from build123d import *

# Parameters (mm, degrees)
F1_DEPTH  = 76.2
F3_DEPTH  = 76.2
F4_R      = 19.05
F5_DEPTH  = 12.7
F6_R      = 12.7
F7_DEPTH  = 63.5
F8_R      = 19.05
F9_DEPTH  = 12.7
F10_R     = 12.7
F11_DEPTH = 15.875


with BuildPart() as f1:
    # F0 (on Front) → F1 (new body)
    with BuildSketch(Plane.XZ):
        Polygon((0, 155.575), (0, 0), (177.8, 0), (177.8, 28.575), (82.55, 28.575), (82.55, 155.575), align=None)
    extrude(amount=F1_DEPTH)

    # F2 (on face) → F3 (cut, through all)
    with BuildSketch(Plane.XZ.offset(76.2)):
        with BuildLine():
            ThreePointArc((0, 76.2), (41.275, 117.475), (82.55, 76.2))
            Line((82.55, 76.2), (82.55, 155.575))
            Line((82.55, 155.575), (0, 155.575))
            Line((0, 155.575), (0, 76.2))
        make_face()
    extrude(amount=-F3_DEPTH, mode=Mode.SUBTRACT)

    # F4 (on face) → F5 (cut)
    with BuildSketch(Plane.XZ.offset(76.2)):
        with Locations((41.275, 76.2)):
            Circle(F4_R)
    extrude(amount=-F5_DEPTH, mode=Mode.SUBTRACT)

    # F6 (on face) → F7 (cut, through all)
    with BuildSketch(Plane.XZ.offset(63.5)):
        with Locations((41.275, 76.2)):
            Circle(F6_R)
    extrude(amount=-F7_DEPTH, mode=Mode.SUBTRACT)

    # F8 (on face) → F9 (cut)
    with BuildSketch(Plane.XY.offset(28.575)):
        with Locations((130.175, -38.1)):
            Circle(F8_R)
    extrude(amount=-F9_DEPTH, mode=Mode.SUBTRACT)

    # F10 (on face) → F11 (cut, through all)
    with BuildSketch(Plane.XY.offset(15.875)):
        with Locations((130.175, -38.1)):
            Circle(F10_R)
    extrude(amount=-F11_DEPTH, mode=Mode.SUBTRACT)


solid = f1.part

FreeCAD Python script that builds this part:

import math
import FreeCAD as App
import Part
import Sketcher
Q = App.Units.Quantity


def add_polygon(sketch, points):
    """Adds a closed chain of lines whose ends are joined by coincident constraints."""
    first, n = sketch.GeometryCount, len(points)
    for a, b in zip(points, points[1:] + points[:1]):
        sketch.addGeometry(Part.LineSegment(App.Vector(*a, 0), App.Vector(*b, 0)), False)
    for i in range(n):
        sketch.addConstraint(Sketcher.Constraint("Coincident", first + i, 2, first + (i + 1) % n, 1))

doc = App.newDocument("Part")
body = doc.addObject("PartDesign::Body", "Body")

sketch1 = body.newObject("Sketcher::SketchObject", "Sketch")
sketch1.AttachmentSupport = (doc.getObject("XZ_Plane"), [""])
sketch1.MapMode = "FlatFace"
add_polygon(sketch1, [(0, 156), (0, 0), (178, 0), (178, 29), (83, 29), (83, 156)])
sketch1.addConstraint([
    Sketcher.Constraint("Vertical", 0),
    Sketcher.Constraint("Horizontal", 1),
    Sketcher.Constraint("Vertical", 2),
    Sketcher.Constraint("Horizontal", 3),
    Sketcher.Constraint("Vertical", 4),
    Sketcher.Constraint("Horizontal", 5),
    Sketcher.Constraint("Coincident", 0, 2, -1, 1),
    Sketcher.Constraint("DistanceX", 1, 1, 1, 2, Q("7 in")),
    Sketcher.Constraint("DistanceY", 4, 1, 4, 2, Q("5 in")),
    Sketcher.Constraint("DistanceX", 3, 2, 3, 1, Q("3.75 in")),
    Sketcher.Constraint("DistanceY", 0, 2, 0, 1, Q("6.125 in")),
])
pad1 = body.newObject("PartDesign::Pad", "Pad")
pad1.Profile = sketch1
pad1.Length = Q("3 in")

sketch2 = body.newObject("Sketcher::SketchObject", "Sketch001")
sketch2.AttachmentSupport = (doc.getObject("XZ_Plane"), [""])
sketch2.MapMode = "FlatFace"
sketch2.AttachmentOffset = App.Placement(App.Vector(0, 0, 3 * 25.4), App.Rotation())
sketch2.addGeometry([
    Part.ArcOfCircle(Part.Circle(App.Vector(41, 76, 0), App.Vector(0, 0, 1), 41), math.radians(0), math.radians(180)),
    Part.LineSegment(App.Vector(83, 76, 0), App.Vector(83, 156, 0)),
    Part.LineSegment(App.Vector(83, 156, 0), App.Vector(0, 156, 0)),
    Part.LineSegment(App.Vector(0, 156, 0), App.Vector(0, 76, 0)),
], False)
sketch2.addConstraint([
    Sketcher.Constraint("Tangent", 0, 1, 1, 1),
    Sketcher.Constraint("Coincident", 1, 2, 2, 1),
    Sketcher.Constraint("Coincident", 2, 2, 3, 1),
    Sketcher.Constraint("Tangent", 3, 2, 0, 2),
    Sketcher.Constraint("Vertical", 1),
    Sketcher.Constraint("Horizontal", 2),
    Sketcher.Constraint("Vertical", 3),
    Sketcher.Constraint("PointOnObject", 2, 2, -2),
    Sketcher.Constraint("DistanceY", -1, 1, 0, 3, Q("3 in")),
    Sketcher.Constraint("Radius", 0, Q("1.625 in")),
    Sketcher.Constraint("DistanceY", 1, 1, 1, 2, Q("3.125 in")),
])
pocket1 = body.newObject("PartDesign::Pocket", "Pocket")
pocket1.Profile = sketch2
pocket1.Type = "ThroughAll"

sketch3 = body.newObject("Sketcher::SketchObject", "Sketch002")
sketch3.AttachmentSupport = (doc.getObject("XZ_Plane"), [""])
sketch3.MapMode = "FlatFace"
sketch3.AttachmentOffset = App.Placement(App.Vector(0, 0, 3 * 25.4), App.Rotation())
sketch3.addGeometry(Part.Circle(App.Vector(41, 76, 0), App.Vector(0, 0, 1), 19), False)
sketch3.addConstraint([
    Sketcher.Constraint("Diameter", 0, Q("1.5 in")),
    Sketcher.Constraint("DistanceY", -1, 1, 0, 3, Q("3 in")),
    Sketcher.Constraint("DistanceX", -1, 1, 0, 3, Q("1.625 in")),
])
pocket2 = body.newObject("PartDesign::Pocket", "Pocket001")
pocket2.Profile = sketch3
pocket2.Length = Q("0.5 in")

sketch4 = body.newObject("Sketcher::SketchObject", "Sketch003")
sketch4.AttachmentSupport = (doc.getObject("XZ_Plane"), [""])
sketch4.MapMode = "FlatFace"
sketch4.AttachmentOffset = App.Placement(App.Vector(0, 0, 2.5 * 25.4), App.Rotation())
sketch4.addGeometry(Part.Circle(App.Vector(41, 76, 0), App.Vector(0, 0, 1), 13), False)
sketch4.addConstraint([
    Sketcher.Constraint("Diameter", 0, Q("1 in")),
    Sketcher.Constraint("DistanceY", -1, 1, 0, 3, Q("3 in")),
    Sketcher.Constraint("DistanceX", -1, 1, 0, 3, Q("1.625 in")),
])
pocket3 = body.newObject("PartDesign::Pocket", "Pocket002")
pocket3.Profile = sketch4
pocket3.Type = "ThroughAll"

sketch5 = body.newObject("Sketcher::SketchObject", "Sketch004")
sketch5.AttachmentSupport = (doc.getObject("XY_Plane"), [""])
sketch5.MapMode = "FlatFace"
sketch5.AttachmentOffset = App.Placement(App.Vector(0, 0, 1.125 * 25.4), App.Rotation())
sketch5.addGeometry(Part.Circle(App.Vector(130, -38, 0), App.Vector(0, 0, 1), 19), False)
sketch5.addConstraint([
    Sketcher.Constraint("Diameter", 0, Q("1.5 in")),
    Sketcher.Constraint("DistanceY", 0, 3, -1, 1, Q("1.5 in")),
    Sketcher.Constraint("DistanceX", -1, 1, 0, 3, Q("5.125 in")),
])
pocket4 = body.newObject("PartDesign::Pocket", "Pocket003")
pocket4.Profile = sketch5
pocket4.Length = Q("0.5 in")

sketch6 = body.newObject("Sketcher::SketchObject", "Sketch005")
sketch6.AttachmentSupport = (doc.getObject("XY_Plane"), [""])
sketch6.MapMode = "FlatFace"
sketch6.AttachmentOffset = App.Placement(App.Vector(0, 0, 0.625 * 25.4), App.Rotation())
sketch6.addGeometry(Part.Circle(App.Vector(130, -38, 0), App.Vector(0, 0, 1), 13), False)
sketch6.addConstraint([
    Sketcher.Constraint("Diameter", 0, Q("1 in")),
    Sketcher.Constraint("DistanceY", 0, 3, -1, 1, Q("1.5 in")),
    Sketcher.Constraint("DistanceX", -1, 1, 0, 3, Q("5.125 in")),
])
pocket5 = body.newObject("PartDesign::Pocket", "Pocket004")
pocket5.Profile = sketch6
pocket5.Type = "ThroughAll"

doc.recompute()
